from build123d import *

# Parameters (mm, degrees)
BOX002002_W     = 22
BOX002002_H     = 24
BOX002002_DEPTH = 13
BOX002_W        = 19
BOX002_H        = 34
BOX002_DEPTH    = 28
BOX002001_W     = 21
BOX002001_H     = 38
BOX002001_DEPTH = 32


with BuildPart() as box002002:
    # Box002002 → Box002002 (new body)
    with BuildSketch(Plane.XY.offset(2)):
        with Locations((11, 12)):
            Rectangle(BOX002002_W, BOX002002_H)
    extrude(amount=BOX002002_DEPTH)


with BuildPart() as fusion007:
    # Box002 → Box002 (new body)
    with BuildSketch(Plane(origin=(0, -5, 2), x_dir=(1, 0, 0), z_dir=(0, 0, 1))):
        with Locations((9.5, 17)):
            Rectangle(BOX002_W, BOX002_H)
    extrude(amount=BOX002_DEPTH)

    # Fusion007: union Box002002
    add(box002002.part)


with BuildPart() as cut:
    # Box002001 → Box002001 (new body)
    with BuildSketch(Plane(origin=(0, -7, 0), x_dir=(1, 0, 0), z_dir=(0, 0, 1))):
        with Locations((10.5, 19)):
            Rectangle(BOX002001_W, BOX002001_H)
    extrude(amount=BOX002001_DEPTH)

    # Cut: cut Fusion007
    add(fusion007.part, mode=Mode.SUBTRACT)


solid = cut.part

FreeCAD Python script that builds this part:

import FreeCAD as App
import Part
import Sketcher

V = App.Vector


def add_polygon(sketch, points):
    """Adds a closed chain of lines whose ends are joined by coincident constraints."""
    first, n = sketch.GeometryCount, len(points)
    for a, b in zip(points, points[1:] + points[:1]):
        sketch.addGeometry(Part.LineSegment(App.Vector(*a, 0), App.Vector(*b, 0)), False)
    for i in range(n):
        sketch.addConstraint(Sketcher.Constraint("Coincident", first + i, 2, first + (i + 1) % n, 1))

doc = App.newDocument("Part")
body = doc.addObject("PartDesign::Body", "Body")

# Sketch on XY plane
sketch1 = body.newObject("Sketcher::SketchObject", "Sketch")
sketch1.AttachmentSupport = (doc.getObject("XY_Plane"), [""])
sketch1.MapMode = "FlatFace"
sketch1.AttachmentOffset = App.Placement(V(0, 0, 2), App.Rotation())
add_polygon(sketch1, [(0, 24), (0, 0), (22, 0), (22, 24)])  # lines 0-3
sketch1.addConstraint([
    Sketcher.Constraint("Vertical", 0),
    Sketcher.Constraint("Horizontal", 1),
    Sketcher.Constraint("Vertical", 2),
    Sketcher.Constraint("Horizontal", 3),
    Sketcher.Constraint("Coincident", 0, 2, -1, 1),
    Sketcher.Constraint("DistanceX", 1, 1, 1, 2, 22.0),
    Sketcher.Constraint("DistanceY", 0, 2, 0, 1, 24.0),
])
pad1 = body.newObject("PartDesign::Pad", "Pad")
pad1.Profile = sketch1
pad1.Length = 13
body2 = doc.addObject("PartDesign::Body", "Body001")

# Sketch on XY plane
sketch2 = body2.newObject("Sketcher::SketchObject", "Sketch001")
sketch2.AttachmentSupport = (doc.getObject("XY_Plane001"), [""])
sketch2.MapMode = "FlatFace"
sketch2.AttachmentOffset = App.Placement(V(0, 0, 2), App.Rotation())
add_polygon(sketch2, [(0, 29), (0, -5), (19, -5), (19, 29)])  # lines 0-3
sketch2.addConstraint([
    Sketcher.Constraint("Vertical", 0),
    Sketcher.Constraint("Horizontal", 1),
    Sketcher.Constraint("Vertical", 2),
    Sketcher.Constraint("Horizontal", 3),
    Sketcher.Constraint("PointOnObject", 0, 2, -2),
    Sketcher.Constraint("DistanceX", 1, 1, 1, 2, 19.0),
    Sketcher.Constraint("DistanceY", 0, 2, 0, 1, 34.0),
    Sketcher.Constraint("DistanceY", 0, 2, -1, 1, 5.0),
])
pad2 = body2.newObject("PartDesign::Pad", "Pad001")
pad2.Profile = sketch2
pad2.Length = 28
doc.recompute()

boolean = body2.newObject("PartDesign::Boolean", "Boolean")
boolean.Type = "Fuse"
boolean.addObjects([body])
body3 = doc.addObject("PartDesign::Body", "Body002")

# Sketch on XY plane
sketch3 = body3.newObject("Sketcher::SketchObject", "Sketch002")
sketch3.AttachmentSupport = (doc.getObject("XY_Plane002"), [""])
sketch3.MapMode = "FlatFace"
add_polygon(sketch3, [(0, 31), (0, -7), (21, -7), (21, 31)])  # lines 0-3
sketch3.addConstraint([
    Sketcher.Constraint("Vertical", 0),
    Sketcher.Constraint("Horizontal", 1),
    Sketcher.Constraint("Vertical", 2),
    Sketcher.Constraint("Horizontal", 3),
    Sketcher.Constraint("PointOnObject", 0, 2, -2),
    Sketcher.Constraint("DistanceX", 1, 1, 1, 2, 21.0),
    Sketcher.Constraint("DistanceY", 0, 2, 0, 1, 38.0),
    Sketcher.Constraint("DistanceY", 0, 2, -1, 1, 7.0),
])
pad3 = body3.newObject("PartDesign::Pad", "Pad002")
pad3.Profile = sketch3
pad3.Length = 32
doc.recompute()

boolean2 = body3.newObject("PartDesign::Boolean", "Boolean001")
boolean2.Type = "Cut"
boolean2.addObjects([body2])

doc.recompute()
